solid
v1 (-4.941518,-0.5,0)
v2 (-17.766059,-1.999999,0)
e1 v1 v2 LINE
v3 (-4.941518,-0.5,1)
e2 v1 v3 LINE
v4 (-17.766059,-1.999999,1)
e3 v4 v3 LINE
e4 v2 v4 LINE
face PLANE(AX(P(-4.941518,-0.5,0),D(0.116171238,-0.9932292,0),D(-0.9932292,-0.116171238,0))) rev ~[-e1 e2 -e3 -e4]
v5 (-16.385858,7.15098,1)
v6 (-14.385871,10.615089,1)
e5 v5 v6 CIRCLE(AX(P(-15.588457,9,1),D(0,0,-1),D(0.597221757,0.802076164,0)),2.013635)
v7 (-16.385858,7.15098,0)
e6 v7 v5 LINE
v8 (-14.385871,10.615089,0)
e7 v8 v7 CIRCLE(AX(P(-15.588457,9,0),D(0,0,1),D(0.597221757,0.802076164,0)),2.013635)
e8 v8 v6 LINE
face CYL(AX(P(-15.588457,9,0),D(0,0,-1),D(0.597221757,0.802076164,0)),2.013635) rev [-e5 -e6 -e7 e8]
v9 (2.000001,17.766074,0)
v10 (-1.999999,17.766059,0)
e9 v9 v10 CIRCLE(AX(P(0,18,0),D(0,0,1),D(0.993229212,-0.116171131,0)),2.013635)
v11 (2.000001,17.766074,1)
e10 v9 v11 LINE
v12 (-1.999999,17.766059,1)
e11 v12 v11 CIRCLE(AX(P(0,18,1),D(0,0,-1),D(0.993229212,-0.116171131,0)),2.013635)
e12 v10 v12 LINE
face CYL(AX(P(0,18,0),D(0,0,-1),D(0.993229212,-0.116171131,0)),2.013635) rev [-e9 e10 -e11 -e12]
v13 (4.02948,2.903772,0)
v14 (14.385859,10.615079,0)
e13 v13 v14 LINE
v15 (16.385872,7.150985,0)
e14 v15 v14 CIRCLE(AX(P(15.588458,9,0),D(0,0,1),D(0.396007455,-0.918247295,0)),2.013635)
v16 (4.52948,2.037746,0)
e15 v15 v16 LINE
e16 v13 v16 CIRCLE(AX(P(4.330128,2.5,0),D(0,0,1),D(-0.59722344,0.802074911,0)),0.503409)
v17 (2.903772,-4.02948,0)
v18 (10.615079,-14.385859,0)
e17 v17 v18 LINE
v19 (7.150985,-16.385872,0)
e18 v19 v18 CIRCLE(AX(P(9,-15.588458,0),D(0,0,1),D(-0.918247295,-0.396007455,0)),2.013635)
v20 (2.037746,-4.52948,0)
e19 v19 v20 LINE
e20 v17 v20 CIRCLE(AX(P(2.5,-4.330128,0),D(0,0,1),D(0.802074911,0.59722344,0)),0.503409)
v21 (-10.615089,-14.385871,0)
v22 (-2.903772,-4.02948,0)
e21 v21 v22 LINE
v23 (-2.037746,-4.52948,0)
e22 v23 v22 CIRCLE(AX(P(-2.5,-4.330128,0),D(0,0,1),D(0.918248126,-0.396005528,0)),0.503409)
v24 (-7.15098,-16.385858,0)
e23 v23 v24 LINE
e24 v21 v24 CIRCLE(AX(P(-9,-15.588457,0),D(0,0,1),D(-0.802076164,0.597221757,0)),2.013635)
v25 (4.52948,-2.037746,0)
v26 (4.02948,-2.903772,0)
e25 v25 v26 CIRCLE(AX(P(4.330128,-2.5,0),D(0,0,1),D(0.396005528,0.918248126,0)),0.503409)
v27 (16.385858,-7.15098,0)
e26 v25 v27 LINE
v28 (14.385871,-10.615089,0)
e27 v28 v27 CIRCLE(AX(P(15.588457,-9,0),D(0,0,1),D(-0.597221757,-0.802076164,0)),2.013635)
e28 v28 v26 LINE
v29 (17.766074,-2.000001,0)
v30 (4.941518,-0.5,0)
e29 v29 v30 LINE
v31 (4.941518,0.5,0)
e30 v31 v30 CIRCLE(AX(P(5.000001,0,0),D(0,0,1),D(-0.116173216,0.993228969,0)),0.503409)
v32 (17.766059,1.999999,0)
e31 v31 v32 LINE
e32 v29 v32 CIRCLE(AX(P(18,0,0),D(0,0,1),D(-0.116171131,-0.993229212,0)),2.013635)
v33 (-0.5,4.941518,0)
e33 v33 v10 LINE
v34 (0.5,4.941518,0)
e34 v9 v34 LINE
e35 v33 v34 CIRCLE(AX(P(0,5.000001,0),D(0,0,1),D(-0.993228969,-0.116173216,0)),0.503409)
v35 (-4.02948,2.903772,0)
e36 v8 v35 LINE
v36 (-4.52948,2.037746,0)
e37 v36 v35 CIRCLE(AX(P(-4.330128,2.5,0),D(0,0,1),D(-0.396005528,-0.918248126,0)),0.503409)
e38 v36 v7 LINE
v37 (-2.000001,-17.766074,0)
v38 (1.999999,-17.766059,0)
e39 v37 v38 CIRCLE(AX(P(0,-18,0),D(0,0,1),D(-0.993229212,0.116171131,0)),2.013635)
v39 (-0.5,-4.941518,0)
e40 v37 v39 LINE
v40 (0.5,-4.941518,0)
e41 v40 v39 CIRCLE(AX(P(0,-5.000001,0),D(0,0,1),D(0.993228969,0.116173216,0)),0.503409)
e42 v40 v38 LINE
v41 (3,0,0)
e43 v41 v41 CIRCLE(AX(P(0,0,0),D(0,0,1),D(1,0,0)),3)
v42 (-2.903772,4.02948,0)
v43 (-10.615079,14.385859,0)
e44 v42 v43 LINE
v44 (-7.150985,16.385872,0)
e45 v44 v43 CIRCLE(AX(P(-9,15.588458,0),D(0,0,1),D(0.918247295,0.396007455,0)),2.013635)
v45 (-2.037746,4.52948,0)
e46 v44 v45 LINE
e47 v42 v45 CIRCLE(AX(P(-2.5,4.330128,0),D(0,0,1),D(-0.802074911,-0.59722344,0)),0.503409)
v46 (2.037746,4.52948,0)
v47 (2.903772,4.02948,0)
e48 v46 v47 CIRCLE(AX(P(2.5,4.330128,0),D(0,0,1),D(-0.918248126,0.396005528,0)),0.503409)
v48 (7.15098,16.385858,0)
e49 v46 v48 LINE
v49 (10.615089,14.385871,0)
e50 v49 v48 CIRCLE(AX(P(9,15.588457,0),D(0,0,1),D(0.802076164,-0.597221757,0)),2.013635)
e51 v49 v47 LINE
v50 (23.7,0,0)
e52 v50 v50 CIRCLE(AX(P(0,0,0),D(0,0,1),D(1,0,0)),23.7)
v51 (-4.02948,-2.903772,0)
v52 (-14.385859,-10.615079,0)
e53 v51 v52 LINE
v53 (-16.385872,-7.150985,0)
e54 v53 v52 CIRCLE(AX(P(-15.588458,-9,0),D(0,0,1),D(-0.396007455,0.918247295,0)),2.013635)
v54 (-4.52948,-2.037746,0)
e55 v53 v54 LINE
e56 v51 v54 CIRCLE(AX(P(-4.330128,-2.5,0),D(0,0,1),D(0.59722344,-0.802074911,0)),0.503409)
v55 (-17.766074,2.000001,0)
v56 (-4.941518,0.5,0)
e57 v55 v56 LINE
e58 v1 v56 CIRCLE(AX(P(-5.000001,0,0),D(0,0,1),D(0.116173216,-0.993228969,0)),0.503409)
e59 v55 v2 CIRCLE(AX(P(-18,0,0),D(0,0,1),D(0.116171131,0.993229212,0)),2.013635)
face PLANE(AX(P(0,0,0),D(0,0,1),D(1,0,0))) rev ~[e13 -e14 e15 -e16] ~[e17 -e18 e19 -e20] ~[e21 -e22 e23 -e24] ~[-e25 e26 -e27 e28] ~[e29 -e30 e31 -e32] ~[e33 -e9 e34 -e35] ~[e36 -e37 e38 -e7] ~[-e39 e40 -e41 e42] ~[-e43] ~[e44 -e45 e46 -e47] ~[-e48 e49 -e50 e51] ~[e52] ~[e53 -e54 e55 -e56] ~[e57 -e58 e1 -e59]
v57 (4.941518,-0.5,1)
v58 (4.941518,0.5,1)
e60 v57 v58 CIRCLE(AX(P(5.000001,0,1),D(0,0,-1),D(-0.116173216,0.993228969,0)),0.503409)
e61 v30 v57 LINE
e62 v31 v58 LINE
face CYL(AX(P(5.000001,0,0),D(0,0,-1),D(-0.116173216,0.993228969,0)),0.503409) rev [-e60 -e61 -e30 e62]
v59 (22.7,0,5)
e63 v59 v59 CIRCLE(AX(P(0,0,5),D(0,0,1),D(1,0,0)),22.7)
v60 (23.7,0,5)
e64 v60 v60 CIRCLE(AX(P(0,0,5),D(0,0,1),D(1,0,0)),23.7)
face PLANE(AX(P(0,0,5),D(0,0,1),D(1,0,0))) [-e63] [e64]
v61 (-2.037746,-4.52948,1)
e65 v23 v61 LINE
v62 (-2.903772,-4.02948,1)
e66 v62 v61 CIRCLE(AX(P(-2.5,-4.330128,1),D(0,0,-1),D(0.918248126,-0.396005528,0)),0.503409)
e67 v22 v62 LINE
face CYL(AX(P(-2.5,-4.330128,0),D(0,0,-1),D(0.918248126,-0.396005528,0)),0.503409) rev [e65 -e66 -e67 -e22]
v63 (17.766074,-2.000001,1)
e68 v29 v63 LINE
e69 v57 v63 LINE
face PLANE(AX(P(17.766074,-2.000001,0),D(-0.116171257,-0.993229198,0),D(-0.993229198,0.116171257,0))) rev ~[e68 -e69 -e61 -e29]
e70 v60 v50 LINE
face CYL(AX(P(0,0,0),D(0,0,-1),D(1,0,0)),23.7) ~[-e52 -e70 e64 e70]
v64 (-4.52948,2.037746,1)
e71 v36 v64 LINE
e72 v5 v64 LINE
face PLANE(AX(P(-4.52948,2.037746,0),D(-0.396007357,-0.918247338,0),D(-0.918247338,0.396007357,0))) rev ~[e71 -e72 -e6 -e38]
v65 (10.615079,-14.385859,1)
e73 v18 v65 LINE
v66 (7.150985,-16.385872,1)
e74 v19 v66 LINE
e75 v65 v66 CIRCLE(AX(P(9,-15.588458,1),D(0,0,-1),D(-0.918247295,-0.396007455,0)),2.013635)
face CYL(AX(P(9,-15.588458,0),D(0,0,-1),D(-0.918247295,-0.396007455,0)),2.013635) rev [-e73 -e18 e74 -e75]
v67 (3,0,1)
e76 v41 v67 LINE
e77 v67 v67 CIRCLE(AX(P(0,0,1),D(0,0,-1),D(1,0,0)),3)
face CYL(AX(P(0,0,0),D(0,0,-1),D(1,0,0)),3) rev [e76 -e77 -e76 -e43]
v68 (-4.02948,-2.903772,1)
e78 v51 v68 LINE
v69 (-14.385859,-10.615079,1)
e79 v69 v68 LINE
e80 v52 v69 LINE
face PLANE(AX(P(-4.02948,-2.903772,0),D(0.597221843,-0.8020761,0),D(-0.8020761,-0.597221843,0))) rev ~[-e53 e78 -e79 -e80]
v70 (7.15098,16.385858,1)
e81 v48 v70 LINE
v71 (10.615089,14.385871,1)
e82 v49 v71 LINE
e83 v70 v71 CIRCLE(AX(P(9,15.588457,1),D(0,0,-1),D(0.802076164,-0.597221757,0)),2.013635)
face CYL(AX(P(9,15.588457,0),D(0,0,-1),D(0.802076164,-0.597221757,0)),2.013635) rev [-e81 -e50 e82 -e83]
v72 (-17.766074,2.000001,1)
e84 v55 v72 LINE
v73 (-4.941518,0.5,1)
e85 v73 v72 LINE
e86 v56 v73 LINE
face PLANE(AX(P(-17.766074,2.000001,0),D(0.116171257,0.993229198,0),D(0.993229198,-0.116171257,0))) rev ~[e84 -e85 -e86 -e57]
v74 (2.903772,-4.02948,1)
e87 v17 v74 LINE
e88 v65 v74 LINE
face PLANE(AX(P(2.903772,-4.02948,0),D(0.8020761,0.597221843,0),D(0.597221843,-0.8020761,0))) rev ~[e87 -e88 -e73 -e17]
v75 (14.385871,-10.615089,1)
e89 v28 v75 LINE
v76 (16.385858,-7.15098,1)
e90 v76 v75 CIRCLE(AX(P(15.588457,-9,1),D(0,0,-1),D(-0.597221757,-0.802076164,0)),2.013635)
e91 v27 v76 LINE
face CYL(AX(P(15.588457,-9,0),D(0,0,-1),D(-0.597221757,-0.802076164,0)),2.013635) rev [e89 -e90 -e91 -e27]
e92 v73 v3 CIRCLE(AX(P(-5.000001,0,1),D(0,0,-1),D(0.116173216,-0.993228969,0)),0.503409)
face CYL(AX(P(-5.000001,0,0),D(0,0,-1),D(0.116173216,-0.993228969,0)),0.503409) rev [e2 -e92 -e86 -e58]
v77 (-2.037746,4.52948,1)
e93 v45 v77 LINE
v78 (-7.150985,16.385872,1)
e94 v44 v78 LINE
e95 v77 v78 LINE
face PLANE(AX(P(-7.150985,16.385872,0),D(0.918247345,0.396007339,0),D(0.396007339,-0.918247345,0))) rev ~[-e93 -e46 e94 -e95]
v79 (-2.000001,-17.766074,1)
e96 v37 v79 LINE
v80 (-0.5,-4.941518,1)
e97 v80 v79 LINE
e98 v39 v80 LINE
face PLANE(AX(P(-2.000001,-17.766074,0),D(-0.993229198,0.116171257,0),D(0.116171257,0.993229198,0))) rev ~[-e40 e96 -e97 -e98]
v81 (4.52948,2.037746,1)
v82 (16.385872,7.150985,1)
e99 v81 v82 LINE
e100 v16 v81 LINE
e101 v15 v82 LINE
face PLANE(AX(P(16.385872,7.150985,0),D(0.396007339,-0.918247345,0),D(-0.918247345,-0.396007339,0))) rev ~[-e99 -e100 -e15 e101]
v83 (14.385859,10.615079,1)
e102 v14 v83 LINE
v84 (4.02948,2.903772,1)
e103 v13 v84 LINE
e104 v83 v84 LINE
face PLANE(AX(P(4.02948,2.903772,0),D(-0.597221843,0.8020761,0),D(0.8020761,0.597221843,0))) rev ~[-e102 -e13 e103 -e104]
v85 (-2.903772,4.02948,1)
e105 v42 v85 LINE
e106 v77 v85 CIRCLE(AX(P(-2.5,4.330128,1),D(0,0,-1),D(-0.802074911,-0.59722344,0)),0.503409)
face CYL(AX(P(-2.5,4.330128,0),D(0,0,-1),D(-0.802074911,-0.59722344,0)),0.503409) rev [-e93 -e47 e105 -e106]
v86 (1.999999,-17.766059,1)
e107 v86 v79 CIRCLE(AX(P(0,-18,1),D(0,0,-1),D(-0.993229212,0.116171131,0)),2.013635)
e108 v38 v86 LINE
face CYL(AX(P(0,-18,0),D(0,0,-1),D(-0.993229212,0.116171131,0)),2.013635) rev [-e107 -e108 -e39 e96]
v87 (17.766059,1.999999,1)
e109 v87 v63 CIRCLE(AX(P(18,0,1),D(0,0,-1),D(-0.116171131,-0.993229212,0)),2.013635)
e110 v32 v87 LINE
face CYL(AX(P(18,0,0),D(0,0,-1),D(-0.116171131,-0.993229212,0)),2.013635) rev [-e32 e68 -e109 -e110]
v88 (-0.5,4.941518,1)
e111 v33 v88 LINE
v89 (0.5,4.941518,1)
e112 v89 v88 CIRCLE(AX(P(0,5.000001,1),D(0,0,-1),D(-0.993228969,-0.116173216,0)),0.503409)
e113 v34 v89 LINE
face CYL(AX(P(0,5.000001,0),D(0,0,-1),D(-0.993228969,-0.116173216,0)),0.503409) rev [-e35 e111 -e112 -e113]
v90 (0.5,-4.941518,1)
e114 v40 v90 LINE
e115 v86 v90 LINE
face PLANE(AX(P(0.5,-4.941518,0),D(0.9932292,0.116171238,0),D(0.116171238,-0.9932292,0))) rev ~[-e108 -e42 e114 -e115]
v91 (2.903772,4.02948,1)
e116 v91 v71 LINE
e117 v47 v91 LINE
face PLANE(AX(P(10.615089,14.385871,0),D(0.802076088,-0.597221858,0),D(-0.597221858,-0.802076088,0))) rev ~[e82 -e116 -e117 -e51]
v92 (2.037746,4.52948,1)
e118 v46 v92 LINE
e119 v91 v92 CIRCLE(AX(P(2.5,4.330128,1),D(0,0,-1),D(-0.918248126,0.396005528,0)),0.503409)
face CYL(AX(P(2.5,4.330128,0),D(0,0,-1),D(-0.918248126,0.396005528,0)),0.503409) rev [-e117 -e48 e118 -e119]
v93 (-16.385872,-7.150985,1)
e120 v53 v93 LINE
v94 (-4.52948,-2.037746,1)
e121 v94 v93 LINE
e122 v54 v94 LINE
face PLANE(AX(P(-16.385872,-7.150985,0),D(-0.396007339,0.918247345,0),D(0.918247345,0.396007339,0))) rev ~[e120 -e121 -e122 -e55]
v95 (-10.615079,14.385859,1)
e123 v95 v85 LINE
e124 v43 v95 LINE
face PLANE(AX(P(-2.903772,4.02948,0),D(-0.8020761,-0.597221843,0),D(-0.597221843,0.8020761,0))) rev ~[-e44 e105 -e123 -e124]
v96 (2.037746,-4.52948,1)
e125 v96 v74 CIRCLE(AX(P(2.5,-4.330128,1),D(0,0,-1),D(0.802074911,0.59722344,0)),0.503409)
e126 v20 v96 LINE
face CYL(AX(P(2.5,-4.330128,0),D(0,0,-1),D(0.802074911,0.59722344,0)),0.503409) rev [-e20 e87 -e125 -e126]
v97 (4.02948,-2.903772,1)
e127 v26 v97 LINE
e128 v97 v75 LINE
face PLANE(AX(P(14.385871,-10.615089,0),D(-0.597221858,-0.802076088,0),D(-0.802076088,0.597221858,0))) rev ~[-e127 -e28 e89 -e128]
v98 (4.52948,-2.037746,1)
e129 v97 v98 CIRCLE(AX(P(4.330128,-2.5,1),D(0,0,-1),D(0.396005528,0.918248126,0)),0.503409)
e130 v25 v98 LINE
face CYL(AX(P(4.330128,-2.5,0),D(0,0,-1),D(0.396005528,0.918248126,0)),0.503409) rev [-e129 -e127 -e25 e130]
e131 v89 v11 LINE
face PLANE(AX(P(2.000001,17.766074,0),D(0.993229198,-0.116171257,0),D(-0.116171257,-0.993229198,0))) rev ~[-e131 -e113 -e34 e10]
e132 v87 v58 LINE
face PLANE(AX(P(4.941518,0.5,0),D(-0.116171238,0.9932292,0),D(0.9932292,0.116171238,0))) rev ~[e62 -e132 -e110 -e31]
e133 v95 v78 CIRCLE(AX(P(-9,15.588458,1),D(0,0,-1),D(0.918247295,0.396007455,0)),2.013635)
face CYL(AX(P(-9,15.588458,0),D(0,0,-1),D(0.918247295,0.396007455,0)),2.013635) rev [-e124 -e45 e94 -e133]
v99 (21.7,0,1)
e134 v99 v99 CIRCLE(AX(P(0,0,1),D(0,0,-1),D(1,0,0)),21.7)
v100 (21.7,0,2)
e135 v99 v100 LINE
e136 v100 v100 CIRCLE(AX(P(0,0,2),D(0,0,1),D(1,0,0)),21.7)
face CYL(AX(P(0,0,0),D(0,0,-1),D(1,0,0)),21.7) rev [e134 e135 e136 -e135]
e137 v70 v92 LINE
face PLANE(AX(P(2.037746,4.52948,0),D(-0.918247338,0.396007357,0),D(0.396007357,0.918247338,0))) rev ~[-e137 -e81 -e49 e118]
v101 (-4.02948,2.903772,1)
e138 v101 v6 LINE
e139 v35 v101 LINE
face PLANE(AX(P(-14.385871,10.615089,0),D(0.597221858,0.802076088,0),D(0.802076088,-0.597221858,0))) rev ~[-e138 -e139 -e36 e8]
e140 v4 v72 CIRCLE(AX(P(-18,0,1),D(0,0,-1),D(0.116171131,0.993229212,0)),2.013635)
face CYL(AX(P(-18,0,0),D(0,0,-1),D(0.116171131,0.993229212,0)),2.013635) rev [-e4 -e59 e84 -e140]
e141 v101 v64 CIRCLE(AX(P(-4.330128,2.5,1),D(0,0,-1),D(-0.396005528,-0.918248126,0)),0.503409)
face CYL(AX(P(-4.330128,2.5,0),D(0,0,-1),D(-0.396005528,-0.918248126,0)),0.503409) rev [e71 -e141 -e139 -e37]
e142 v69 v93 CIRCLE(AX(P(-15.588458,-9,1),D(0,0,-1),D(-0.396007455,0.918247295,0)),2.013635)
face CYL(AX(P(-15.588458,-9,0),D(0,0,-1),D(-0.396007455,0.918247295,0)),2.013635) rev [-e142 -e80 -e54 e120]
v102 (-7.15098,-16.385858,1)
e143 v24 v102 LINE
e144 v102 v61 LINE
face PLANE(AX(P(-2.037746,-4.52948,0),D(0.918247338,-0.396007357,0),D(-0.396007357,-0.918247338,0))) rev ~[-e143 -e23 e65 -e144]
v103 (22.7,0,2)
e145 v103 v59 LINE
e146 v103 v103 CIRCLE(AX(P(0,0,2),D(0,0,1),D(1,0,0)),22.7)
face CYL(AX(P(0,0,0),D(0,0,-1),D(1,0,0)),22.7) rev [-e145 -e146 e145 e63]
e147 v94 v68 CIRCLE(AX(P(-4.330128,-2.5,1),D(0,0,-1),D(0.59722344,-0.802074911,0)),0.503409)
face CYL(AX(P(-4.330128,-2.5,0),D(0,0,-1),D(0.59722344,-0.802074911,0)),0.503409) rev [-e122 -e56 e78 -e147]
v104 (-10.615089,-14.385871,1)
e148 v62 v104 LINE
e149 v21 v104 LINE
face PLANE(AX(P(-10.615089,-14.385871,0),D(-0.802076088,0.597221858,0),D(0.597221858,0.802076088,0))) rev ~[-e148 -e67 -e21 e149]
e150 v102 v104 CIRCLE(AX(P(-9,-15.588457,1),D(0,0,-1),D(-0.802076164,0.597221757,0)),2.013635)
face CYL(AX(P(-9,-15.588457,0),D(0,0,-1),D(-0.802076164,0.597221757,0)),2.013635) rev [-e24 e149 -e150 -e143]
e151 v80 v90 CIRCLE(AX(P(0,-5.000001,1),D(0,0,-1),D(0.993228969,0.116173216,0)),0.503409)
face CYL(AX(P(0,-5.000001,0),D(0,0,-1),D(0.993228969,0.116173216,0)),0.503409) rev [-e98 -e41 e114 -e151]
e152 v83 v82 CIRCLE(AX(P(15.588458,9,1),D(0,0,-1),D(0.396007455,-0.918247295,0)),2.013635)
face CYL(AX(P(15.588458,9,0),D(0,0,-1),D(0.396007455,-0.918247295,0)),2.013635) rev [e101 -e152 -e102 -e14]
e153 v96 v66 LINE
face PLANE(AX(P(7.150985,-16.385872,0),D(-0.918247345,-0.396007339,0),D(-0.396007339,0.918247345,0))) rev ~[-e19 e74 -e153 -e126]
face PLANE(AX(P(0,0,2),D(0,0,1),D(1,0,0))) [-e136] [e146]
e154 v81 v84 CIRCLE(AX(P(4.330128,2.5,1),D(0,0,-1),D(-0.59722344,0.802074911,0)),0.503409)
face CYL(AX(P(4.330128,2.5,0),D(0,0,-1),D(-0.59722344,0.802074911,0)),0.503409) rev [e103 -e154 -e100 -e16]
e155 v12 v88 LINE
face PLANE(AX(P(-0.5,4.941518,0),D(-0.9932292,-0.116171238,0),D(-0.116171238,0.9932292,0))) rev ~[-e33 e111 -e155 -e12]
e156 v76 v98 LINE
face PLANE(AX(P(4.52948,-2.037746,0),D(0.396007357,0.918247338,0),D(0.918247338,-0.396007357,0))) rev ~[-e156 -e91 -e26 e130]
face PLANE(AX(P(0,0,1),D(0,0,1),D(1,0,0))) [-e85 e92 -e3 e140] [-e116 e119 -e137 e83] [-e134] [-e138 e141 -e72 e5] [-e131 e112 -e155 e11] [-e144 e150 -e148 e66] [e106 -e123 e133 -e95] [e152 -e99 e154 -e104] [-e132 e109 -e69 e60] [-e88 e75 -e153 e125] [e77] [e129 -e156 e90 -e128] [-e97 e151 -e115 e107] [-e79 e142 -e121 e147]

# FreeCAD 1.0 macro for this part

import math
import FreeCAD as App
import Part
import Sketcher
from FreeCAD import Vector
Q = App.Units.Quantity

doc = App.newDocument("Part")
params = doc.addObject("Spreadsheet::Sheet", "Params")
for row, (alias, value) in enumerate([
    ("sketch1_diameter", "47.4 mm"),
    ("pad1_length", "1 mm"),
    ("sketch3_diameter", "47.4 mm"),
    ("sketch3_diameter2", "45.4 mm"),
    ("pad2_length", "5 mm"),
    ("sketch4_diameter", "45.4 mm"),
    ("sketch4_diameter2", "43.4 mm"),
    ("pad3_length", "2 mm"),
    ("sketch5_diameter", "6 mm"),
], start=1):
    params.set(f"A{row}", alias)
    params.set(f"B{row}", "=" + value)
    params.setAlias(f"B{row}", alias)

body = doc.addObject("PartDesign::Body", "Body")

# Sketch on XY plane
sketch1 = body.newObject("Sketcher::SketchObject", "Sketch")
sketch1.AttachmentSupport = (doc.getObject("XY_Plane"), [""])
sketch1.MapMode = "FlatFace"
sketch1.addGeometry(Part.Circle(Vector(0, 0, 0), Vector(0, 0, 1), 24), False)
sketch1.addConstraint([
    Sketcher.Constraint("Coincident", 0, 3, -1, 1),
    Sketcher.Constraint("Diameter", 0, Q("47.4 mm")),
])
sketch1.setExpression("Constraints[1]", "Params.sketch1_diameter")
pad1 = body.newObject("PartDesign::Pad", "Pad")
pad1.Profile = sketch1
pad1.setExpression("Length", "Params.pad1_length")

# Sketch on XY plane
sketch2 = body.newObject("Sketcher::SketchObject", "Sketch001")
sketch2.AttachmentSupport = (doc.getObject("XY_Plane"), [""])
sketch2.MapMode = "FlatFace"
sketch2.addGeometry([
    Part.ArcOfCircle(Part.Circle(Vector(0, 5, 0), Vector(0, 0, 1), 0.5), math.radians(-173), math.radians(-7)),
    Part.LineSegment(Vector(0.5, 4.9, 0), Vector(2, 17.8, 0)),
    Part.ArcOfCircle(Part.Circle(Vector(0, 18, 0), Vector(0, 0, 1), 2), math.radians(-7), math.radians(187)),
    Part.LineSegment(Vector(-2, 17.8, 0), Vector(-0.5, 4.9, 0)),
], False)
sketch2.addConstraint([
    Sketcher.Constraint("Tangent", 0, 2, 1, 1),
    Sketcher.Constraint("Tangent", 1, 2, 2, 1),
    Sketcher.Constraint("Coincident", 2, 2, 3, 1),
    Sketcher.Constraint("Tangent", 3, 2, 0, 1),
    Sketcher.Constraint("Symmetric", 0, 2, 3, 2, -2),
    Sketcher.Constraint("DistanceY", -1, 1, 0, 3, Q("5.000001 mm")),
    Sketcher.Constraint("DistanceY", -1, 1, 2, 3, Q("18 mm")),
    Sketcher.Constraint("DistanceX", -1, 1, 1, 2, Q("2.000001 mm")),
    Sketcher.Constraint("DistanceX", 2, 2, -1, 1, Q("1.999999 mm")),
    Sketcher.Constraint("DistanceX", 3, 2, 0, 2, Q("1 mm")),
])
pocket1 = body.newObject("PartDesign::Pocket", "Pocket")
pocket1.Profile = sketch2
pocket1.Type = "ThroughAll"
pocket1.Reversed = True
doc.recompute()

polarpattern = body.newObject("PartDesign::PolarPattern", "PolarPattern")
polarpattern.Originals = [pocket1]
polarpattern.Axis = (doc.getObject("Z_Axis"), [""])
polarpattern.Angle = 360
polarpattern.Occurrences = 12
body.Tip = polarpattern

# Sketch on XY plane
sketch3 = body.newObject("Sketcher::SketchObject", "Sketch002")
sketch3.AttachmentSupport = (doc.getObject("XY_Plane"), [""])
sketch3.MapMode = "FlatFace"
sketch3.addGeometry([
    Part.Circle(Vector(0, 0, 0), Vector(0, 0, 1), 24),
    Part.Circle(Vector(0, 0, 0), Vector(0, 0, 1), 23),
], False)
sketch3.addConstraint([
    Sketcher.Constraint("Coincident", 0, 3, -1, 1),
    Sketcher.Constraint("Coincident", 1, 3, -1, 1),
    Sketcher.Constraint("Diameter", 0, Q("47.4 mm")),
    Sketcher.Constraint("Diameter", 1, Q("45.4 mm")),
])
sketch3.setExpression("Constraints[2]", "Params.sketch3_diameter")
sketch3.setExpression("Constraints[3]", "Params.sketch3_diameter2")
pad2 = body.newObject("PartDesign::Pad", "Pad001")
pad2.Profile = sketch3
pad2.setExpression("Length", "Params.pad2_length")

# Sketch on XY plane
sketch4 = body.newObject("Sketcher::SketchObject", "Sketch003")
sketch4.AttachmentSupport = (doc.getObject("XY_Plane"), [""])
sketch4.MapMode = "FlatFace"
sketch4.addGeometry([
    Part.Circle(Vector(0, 0, 0), Vector(0, 0, 1), 23),
    Part.Circle(Vector(0, 0, 0), Vector(0, 0, 1), 22),
], False)
sketch4.addConstraint([
    Sketcher.Constraint("Coincident", 0, 3, -1, 1),
    Sketcher.Constraint("Coincident", 1, 3, -1, 1),
    Sketcher.Constraint("Diameter", 0, Q("45.4 mm")),
    Sketcher.Constraint("Diameter", 1, Q("43.4 mm")),
])
sketch4.setExpression("Constraints[2]", "Params.sketch4_diameter")
sketch4.setExpression("Constraints[3]", "Params.sketch4_diameter2")
pad3 = body.newObject("PartDesign::Pad", "Pad002")
pad3.Profile = sketch4
pad3.setExpression("Length", "Params.pad3_length")

# Sketch on XY plane
sketch5 = body.newObject("Sketcher::SketchObject", "Sketch004")
sketch5.AttachmentSupport = (doc.getObject("XY_Plane"), [""])
sketch5.MapMode = "FlatFace"
sketch5.addGeometry(Part.Circle(Vector(0, 0, 0), Vector(0, 0, 1), 3), False)
sketch5.addConstraint([
    Sketcher.Constraint("Coincident", 0, 3, -1, 1),
    Sketcher.Constraint("Diameter", 0, Q("6 mm")),
])
sketch5.setExpression("Constraints[1]", "Params.sketch5_diameter")
pocket2 = body.newObject("PartDesign::Pocket", "Pocket001")
pocket2.Profile = sketch5
pocket2.Type = "ThroughAll"
pocket2.Reversed = True

doc.recompute()
